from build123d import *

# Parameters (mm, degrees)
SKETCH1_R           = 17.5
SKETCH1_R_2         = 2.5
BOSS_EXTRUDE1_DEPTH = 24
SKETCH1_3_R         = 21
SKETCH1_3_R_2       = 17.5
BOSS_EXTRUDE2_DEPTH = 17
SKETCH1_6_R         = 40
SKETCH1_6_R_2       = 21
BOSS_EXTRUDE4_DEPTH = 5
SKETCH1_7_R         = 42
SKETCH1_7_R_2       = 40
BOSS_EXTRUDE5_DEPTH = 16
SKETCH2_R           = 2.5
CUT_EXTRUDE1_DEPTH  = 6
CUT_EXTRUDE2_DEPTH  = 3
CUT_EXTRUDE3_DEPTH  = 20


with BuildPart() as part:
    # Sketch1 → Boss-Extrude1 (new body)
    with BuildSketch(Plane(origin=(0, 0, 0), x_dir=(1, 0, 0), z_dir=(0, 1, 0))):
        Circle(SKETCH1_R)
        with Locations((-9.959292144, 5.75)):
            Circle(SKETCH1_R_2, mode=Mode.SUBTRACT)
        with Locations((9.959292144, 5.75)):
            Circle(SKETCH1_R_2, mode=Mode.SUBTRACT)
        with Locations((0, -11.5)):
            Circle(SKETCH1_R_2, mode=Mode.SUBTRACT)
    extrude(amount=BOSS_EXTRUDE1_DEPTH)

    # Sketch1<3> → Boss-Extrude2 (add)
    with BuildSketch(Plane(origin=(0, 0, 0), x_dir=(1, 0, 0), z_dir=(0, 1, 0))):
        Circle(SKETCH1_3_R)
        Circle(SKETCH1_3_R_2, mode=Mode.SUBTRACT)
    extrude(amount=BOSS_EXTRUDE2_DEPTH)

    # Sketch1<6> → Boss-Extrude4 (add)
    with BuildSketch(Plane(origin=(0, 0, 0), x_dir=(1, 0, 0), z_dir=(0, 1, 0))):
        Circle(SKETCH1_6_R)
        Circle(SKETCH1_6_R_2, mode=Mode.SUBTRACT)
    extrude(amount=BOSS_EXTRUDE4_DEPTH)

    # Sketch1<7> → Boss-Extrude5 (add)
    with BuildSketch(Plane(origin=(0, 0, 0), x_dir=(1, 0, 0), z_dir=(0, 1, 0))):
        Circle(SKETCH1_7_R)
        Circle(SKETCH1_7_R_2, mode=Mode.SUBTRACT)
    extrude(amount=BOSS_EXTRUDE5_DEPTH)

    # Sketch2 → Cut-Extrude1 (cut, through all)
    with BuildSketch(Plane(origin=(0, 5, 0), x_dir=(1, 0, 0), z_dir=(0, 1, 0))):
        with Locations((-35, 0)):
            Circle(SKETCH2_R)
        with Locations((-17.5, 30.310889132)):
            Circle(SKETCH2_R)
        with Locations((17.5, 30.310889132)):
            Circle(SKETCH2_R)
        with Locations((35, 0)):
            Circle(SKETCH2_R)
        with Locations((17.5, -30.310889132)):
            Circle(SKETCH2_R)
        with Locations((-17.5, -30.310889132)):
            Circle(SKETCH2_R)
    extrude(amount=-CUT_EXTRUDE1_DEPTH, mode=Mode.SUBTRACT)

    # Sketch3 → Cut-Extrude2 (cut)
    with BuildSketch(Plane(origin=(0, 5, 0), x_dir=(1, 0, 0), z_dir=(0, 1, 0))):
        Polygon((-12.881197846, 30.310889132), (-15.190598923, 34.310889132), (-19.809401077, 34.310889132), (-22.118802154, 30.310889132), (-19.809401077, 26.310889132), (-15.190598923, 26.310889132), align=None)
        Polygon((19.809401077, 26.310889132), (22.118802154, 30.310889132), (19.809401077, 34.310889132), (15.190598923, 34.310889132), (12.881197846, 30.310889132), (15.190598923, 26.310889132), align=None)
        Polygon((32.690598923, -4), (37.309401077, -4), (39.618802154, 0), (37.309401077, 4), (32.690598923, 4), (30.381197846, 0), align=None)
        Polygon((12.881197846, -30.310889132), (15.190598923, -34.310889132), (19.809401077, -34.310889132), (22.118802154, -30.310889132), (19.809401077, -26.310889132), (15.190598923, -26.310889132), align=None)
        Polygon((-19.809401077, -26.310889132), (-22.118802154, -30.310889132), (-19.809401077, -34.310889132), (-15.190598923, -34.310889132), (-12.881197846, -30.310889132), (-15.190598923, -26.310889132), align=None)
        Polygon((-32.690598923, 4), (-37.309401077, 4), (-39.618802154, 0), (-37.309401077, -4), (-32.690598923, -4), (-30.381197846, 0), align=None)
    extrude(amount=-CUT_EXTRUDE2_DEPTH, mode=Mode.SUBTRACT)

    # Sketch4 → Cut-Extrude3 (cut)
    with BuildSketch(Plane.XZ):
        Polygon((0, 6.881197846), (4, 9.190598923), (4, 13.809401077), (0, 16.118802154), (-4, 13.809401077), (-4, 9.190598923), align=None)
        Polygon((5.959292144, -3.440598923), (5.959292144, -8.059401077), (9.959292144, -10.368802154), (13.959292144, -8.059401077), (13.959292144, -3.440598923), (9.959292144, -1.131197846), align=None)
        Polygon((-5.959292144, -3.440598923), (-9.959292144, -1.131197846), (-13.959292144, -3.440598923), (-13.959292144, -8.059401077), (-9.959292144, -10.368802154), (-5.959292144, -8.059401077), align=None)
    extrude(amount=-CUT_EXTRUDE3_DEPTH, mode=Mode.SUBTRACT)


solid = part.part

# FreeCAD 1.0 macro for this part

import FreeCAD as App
import Part
import Sketcher
Q = App.Units.Quantity


def add_polygon(sketch, points):
    """Adds a closed chain of lines whose ends are joined by coincident constraints."""
    first, n = sketch.GeometryCount, len(points)
    for a, b in zip(points, points[1:] + points[:1]):
        sketch.addGeometry(Part.LineSegment(App.Vector(*a, 0), App.Vector(*b, 0)), False)
    for i in range(n):
        sketch.addConstraint(Sketcher.Constraint("Coincident", first + i, 2, first + (i + 1) % n, 1))

doc = App.newDocument("Part")
body = doc.addObject("PartDesign::Body", "Body")

# Sketch on XZ plane
sketch1 = body.newObject("Sketcher::SketchObject", "Sketch")
sketch1.AttachmentSupport = (doc.getObject("XZ_Plane"), [""])
sketch1.MapMode = "FlatFace"
sketch1.addGeometry(Part.Circle(App.Vector(0, 0, 0), App.Vector(0, 0, 1), 17.5), False)
sketch1.addGeometry(Part.Circle(App.Vector(0, 11.5, 0), App.Vector(0, 0, 1), 2.5), False)
sketch1.addGeometry(Part.Circle(App.Vector(-10, -5.8, 0), App.Vector(0, 0, 1), 2.5), False)
sketch1.addGeometry(Part.Circle(App.Vector(10, -5.8, 0), App.Vector(0, 0, 1), 2.5), False)
sketch1.addConstraint(Sketcher.Constraint("Coincident", 0, 3, -1, 1))
sketch1.addConstraint(Sketcher.Constraint("Equal", 1, 2))
sketch1.addConstraint(Sketcher.Constraint("Equal", 2, 3))
sketch1.addConstraint(Sketcher.Constraint("Symmetric", 2, 3, 3, 3, -2))
sketch1.addConstraint(Sketcher.Constraint("PointOnObject", 1, 3, -2))
sketch1.addConstraint(Sketcher.Constraint("Diameter", 0, Q("35 mm")))
sketch1.addConstraint(Sketcher.Constraint("Diameter", 1, Q("5 mm")))
sketch1.addConstraint(Sketcher.Constraint("DistanceY", -1, 1, 1, 3, Q("11.5 mm")))
sketch1.addConstraint(Sketcher.Constraint("DistanceY", 2, 3, -1, 1, Q("5.75 mm")))
sketch1.addConstraint(Sketcher.Constraint("DistanceX", 2, 3, -1, 1, Q("9.959292 mm")))
pad1 = body.newObject("PartDesign::Pad", "Pad")
pad1.Profile = sketch1
pad1.Length = 24
pad1.Reversed = True

# Sketch on XZ plane
sketch2 = body.newObject("Sketcher::SketchObject", "Sketch001")
sketch2.AttachmentSupport = (doc.getObject("XZ_Plane"), [""])
sketch2.MapMode = "FlatFace"
sketch2.addGeometry(Part.Circle(App.Vector(0, 0, 0), App.Vector(0, 0, 1), 21), False)
sketch2.addGeometry(Part.Circle(App.Vector(0, 0, 0), App.Vector(0, 0, 1), 18), False)
sketch2.addConstraint(Sketcher.Constraint("Coincident", 0, 3, -1, 1))
sketch2.addConstraint(Sketcher.Constraint("Coincident", 1, 3, -1, 1))
sketch2.addConstraint(Sketcher.Constraint("Diameter", 0, Q("42 mm")))
sketch2.addConstraint(Sketcher.Constraint("Diameter", 1, Q("35 mm")))
pad2 = body.newObject("PartDesign::Pad", "Pad001")
pad2.Profile = sketch2
pad2.Length = 17
pad2.Reversed = True

# Sketch on XZ plane
sketch3 = body.newObject("Sketcher::SketchObject", "Sketch002")
sketch3.AttachmentSupport = (doc.getObject("XZ_Plane"), [""])
sketch3.MapMode = "FlatFace"
sketch3.addGeometry(Part.Circle(App.Vector(0, 0, 0), App.Vector(0, 0, 1), 40), False)
sketch3.addGeometry(Part.Circle(App.Vector(0, 0, 0), App.Vector(0, 0, 1), 21), False)
sketch3.addConstraint(Sketcher.Constraint("Coincident", 0, 3, -1, 1))
sketch3.addConstraint(Sketcher.Constraint("Coincident", 1, 3, -1, 1))
sketch3.addConstraint(Sketcher.Constraint("Diameter", 0, Q("80 mm")))
sketch3.addConstraint(Sketcher.Constraint("Diameter", 1, Q("42 mm")))
pad3 = body.newObject("PartDesign::Pad", "Pad002")
pad3.Profile = sketch3
pad3.Length = 5
pad3.Reversed = True

# Sketch on XZ plane
sketch4 = body.newObject("Sketcher::SketchObject", "Sketch003")
sketch4.AttachmentSupport = (doc.getObject("XZ_Plane"), [""])
sketch4.MapMode = "FlatFace"
sketch4.addGeometry(Part.Circle(App.Vector(0, 0, 0), App.Vector(0, 0, 1), 42), False)
sketch4.addGeometry(Part.Circle(App.Vector(0, 0, 0), App.Vector(0, 0, 1), 40), False)
sketch4.addConstraint(Sketcher.Constraint("Coincident", 0, 3, -1, 1))
sketch4.addConstraint(Sketcher.Constraint("Coincident", 1, 3, -1, 1))
sketch4.addConstraint(Sketcher.Constraint("Diameter", 0, Q("84 mm")))
sketch4.addConstraint(Sketcher.Constraint("Diameter", 1, Q("80 mm")))
pad4 = body.newObject("PartDesign::Pad", "Pad003")
pad4.Profile = sketch4
pad4.Length = 16
pad4.Reversed = True

# Sketch on XZ plane
sketch5 = body.newObject("Sketcher::SketchObject", "Sketch004")
sketch5.AttachmentSupport = (doc.getObject("XZ_Plane"), [""])
sketch5.MapMode = "FlatFace"
sketch5.AttachmentOffset = App.Placement(App.Vector(0, 0, -5), App.Rotation())
sketch5.addGeometry(Part.Circle(App.Vector(-35, 0, 0), App.Vector(0, 0, 1), 2.5), False)
sketch5.addGeometry(Part.Circle(App.Vector(-17.5, -30.3, 0), App.Vector(0, 0, 1), 2.5), False)
sketch5.addGeometry(Part.Circle(App.Vector(17.5, -30.3, 0), App.Vector(0, 0, 1), 2.5), False)
sketch5.addGeometry(Part.Circle(App.Vector(35, 0, 0), App.Vector(0, 0, 1), 2.5), False)
sketch5.addGeometry(Part.Circle(App.Vector(17.5, 30.3, 0), App.Vector(0, 0, 1), 2.5), False)
sketch5.addGeometry(Part.Circle(App.Vector(-17.5, 30.3, 0), App.Vector(0, 0, 1), 2.5), False)
sketch5.addConstraint(Sketcher.Constraint("Equal", 0, 1))
sketch5.addConstraint(Sketcher.Constraint("Equal", 1, 2))
sketch5.addConstraint(Sketcher.Constraint("Equal", 2, 3))
sketch5.addConstraint(Sketcher.Constraint("Equal", 3, 4))
sketch5.addConstraint(Sketcher.Constraint("Equal", 4, 5))
sketch5.addConstraint(Sketcher.Constraint("Symmetric", 0, 3, 3, 3, -1, 1))
sketch5.addConstraint(Sketcher.Constraint("Symmetric", 1, 3, 4, 3, -1, 1))
sketch5.addConstraint(Sketcher.Constraint("Symmetric", 2, 3, 5, 3, -1, 1))
sketch5.addConstraint(Sketcher.Constraint("Symmetric", 1, 3, 2, 3, -2))
sketch5.addConstraint(Sketcher.Constraint("PointOnObject", 0, 3, -1))
sketch5.addConstraint(Sketcher.Constraint("Diameter", 0, Q("5 mm")))
sketch5.addConstraint(Sketcher.Constraint("DistanceX", 0, 3, -1, 1, Q("35 mm")))
sketch5.addConstraint(Sketcher.Constraint("DistanceX", 1, 3, 2, 3, Q("35 mm")))
sketch5.addConstraint(Sketcher.Constraint("DistanceY", 1, 3, -1, 1, Q("30.310889 mm")))
pocket1 = body.newObject("PartDesign::Pocket", "Pocket")
pocket1.Profile = sketch5
pocket1.Type = "ThroughAll"
pocket1.Reversed = True

# Sketch on XZ plane
sketch6 = body.newObject("Sketcher::SketchObject", "Sketch005")
sketch6.AttachmentSupport = (doc.getObject("XZ_Plane"), [""])
sketch6.MapMode = "FlatFace"
sketch6.AttachmentOffset = App.Placement(App.Vector(0, 0, -5), App.Rotation())
add_polygon(sketch6, [(-12.9, -30.3), (-15.2, -34.3), (-19.8, -34.3), (-22.1, -30.3), (-19.8, -26.3), (-15.2, -26.3)])  # lines 0-5
add_polygon(sketch6, [(19.8, -26.3), (22.1, -30.3), (19.8, -34.3), (15.2, -34.3), (12.9, -30.3), (15.2, -26.3)])  # lines 6-11
add_polygon(sketch6, [(32.7, 4), (37.3, 4), (39.6, 0), (37.3, -4), (32.7, -4), (30.4, 0)])  # lines 12-17
add_polygon(sketch6, [(12.9, 30.3), (15.2, 34.3), (19.8, 34.3), (22.1, 30.3), (19.8, 26.3), (15.2, 26.3)])  # lines 18-23
add_polygon(sketch6, [(-19.8, 26.3), (-22.1, 30.3), (-19.8, 34.3), (-15.2, 34.3), (-12.9, 30.3), (-15.2, 26.3)])  # lines 24-29
add_polygon(sketch6, [(-32.7, -4), (-37.3, -4), (-39.6, 0), (-37.3, 4), (-32.7, 4), (-30.4, 0)])  # lines 30-35
sketch6.addConstraint(Sketcher.Constraint("Horizontal", 1))
sketch6.addConstraint(Sketcher.Constraint("Horizontal", 4))
sketch6.addConstraint(Sketcher.Constraint("Horizontal", 8))
sketch6.addConstraint(Sketcher.Constraint("Horizontal", 11))
sketch6.addConstraint(Sketcher.Constraint("Horizontal", 12))
sketch6.addConstraint(Sketcher.Constraint("Horizontal", 15))
sketch6.addConstraint(Sketcher.Constraint("Horizontal", 19))
sketch6.addConstraint(Sketcher.Constraint("Horizontal", 22))
sketch6.addConstraint(Sketcher.Constraint("Horizontal", 26))
sketch6.addConstraint(Sketcher.Constraint("Horizontal", 29))
sketch6.addConstraint(Sketcher.Constraint("Horizontal", 30))
sketch6.addConstraint(Sketcher.Constraint("Horizontal", 33))
sketch6.addConstraint(Sketcher.Constraint("Symmetric", 0, 2, 18, 2, -1, 1))
sketch6.addConstraint(Sketcher.Constraint("Symmetric", 2, 2, 20, 2, -1, 1))
sketch6.addConstraint(Sketcher.Constraint("Symmetric", 3, 2, 21, 2, -1, 1))
sketch6.addConstraint(Sketcher.Constraint("Symmetric", 5, 2, 23, 2, -1, 1))
sketch6.addConstraint(Sketcher.Constraint("Symmetric", 6, 2, 24, 2, -1, 1))
sketch6.addConstraint(Sketcher.Constraint("Symmetric", 7, 2, 25, 2, -1, 1))
sketch6.addConstraint(Sketcher.Constraint("Symmetric", 9, 2, 27, 2, -1, 1))
sketch6.addConstraint(Sketcher.Constraint("Symmetric", 10, 2, 28, 2, -1, 1))
sketch6.addConstraint(Sketcher.Constraint("Symmetric", 12, 2, 30, 2, -1, 1))
sketch6.addConstraint(Sketcher.Constraint("Symmetric", 13, 2, 31, 2, -1, 1))
sketch6.addConstraint(Sketcher.Constraint("Symmetric", 14, 2, 32, 2, -1, 1))
sketch6.addConstraint(Sketcher.Constraint("Symmetric", 16, 2, 34, 2, -1, 1))
sketch6.addConstraint(Sketcher.Constraint("Symmetric", 2, 2, 6, 2, -2))
sketch6.addConstraint(Sketcher.Constraint("Symmetric", 1, 2, 7, 2, -2))
sketch6.addConstraint(Sketcher.Constraint("Symmetric", 5, 2, 9, 2, -2))
sketch6.addConstraint(Sketcher.Constraint("Symmetric", 4, 2, 10, 2, -2))
sketch6.addConstraint(Sketcher.Constraint("Symmetric", 14, 2, 30, 2, -2))
sketch6.addConstraint(Sketcher.Constraint("PointOnObject", 13, 2, -1))
sketch6.addConstraint(Sketcher.Constraint("PointOnObject", 16, 2, -1))
sketch6.addConstraint(Sketcher.Constraint("Parallel", 0, 3))
sketch6.addConstraint(Sketcher.Constraint("Parallel", 2, 5))
sketch6.addConstraint(Sketcher.Constraint("Parallel", 5, 6))
sketch6.addConstraint(Sketcher.Constraint("Parallel", 3, 7))
sketch6.addConstraint(Sketcher.Constraint("Parallel", 6, 9))
sketch6.addConstraint(Sketcher.Constraint("Parallel", 9, 13))
sketch6.addConstraint(Sketcher.Constraint("Parallel", 13, 16))
sketch6.addConstraint(Sketcher.Constraint("Parallel", 14, 17))
sketch6.addConstraint(Sketcher.Constraint("Parallel", 16, 20))
sketch6.addConstraint(Sketcher.Constraint("Parallel", 20, 23))
sketch6.addConstraint(Sketcher.Constraint("Parallel", 23, 24))
sketch6.addConstraint(Sketcher.Constraint("Parallel", 24, 27))
sketch6.addConstraint(Sketcher.Constraint("Parallel", 31, 34))
sketch6.addConstraint(Sketcher.Constraint("Parallel", 32, 35))
sketch6.addConstraint(Sketcher.Constraint("Horizontal", 2, 2, 5, 2))
sketch6.addConstraint(Sketcher.Constraint("Vertical", 1, 2, 3, 2))
sketch6.addConstraint(Sketcher.Constraint("Equal", 11, 12))
sketch6.addConstraint(Sketcher.Constraint("Equal", 10, 13))
sketch6.addConstraint(Sketcher.Constraint("Angle", 0, Q("-120 deg")))
sketch6.addConstraint(Sketcher.Constraint("DistanceY", -1, 1, 12, 2, Q("4 mm")))
sketch6.addConstraint(Sketcher.Constraint("DistanceX", 5, 2, 6, 2, Q("35 mm")))
sketch6.addConstraint(Sketcher.Constraint("DistanceX", 11, 2, 12, 2, Q("17.5 mm")))
sketch6.addConstraint(Sketcher.Constraint("DistanceX", 0, 2, -1, 1, Q("15.190599 mm")))
sketch6.addConstraint(Sketcher.Constraint("DistanceY", 0, 2, -1, 1, Q("34.310889 mm")))
pocket2 = body.newObject("PartDesign::Pocket", "Pocket001")
pocket2.Profile = sketch6
pocket2.Length = 3
pocket2.Reversed = True

# Sketch on XZ plane
sketch7 = body.newObject("Sketcher::SketchObject", "Sketch006")
sketch7.AttachmentSupport = (doc.getObject("XZ_Plane"), [""])
sketch7.MapMode = "FlatFace"
add_polygon(sketch7, [(0, 6.9), (4, 9.2), (4, 13.8), (0, 16.1), (-4, 13.8), (-4, 9.2)])  # lines 0-5
add_polygon(sketch7, [(6, -3.4), (6, -8.1), (10, -10.4), (14, -8.1), (14, -3.4), (10, -1.1)])  # lines 6-11
add_polygon(sketch7, [(-6, -3.4), (-10, -1.1), (-14, -3.4), (-14, -8.1), (-10, -10.4), (-6, -8.1)])  # lines 12-17
sketch7.addConstraint(Sketcher.Constraint("Vertical", 1))
sketch7.addConstraint(Sketcher.Constraint("Vertical", 4))
sketch7.addConstraint(Sketcher.Constraint("Vertical", 6))
sketch7.addConstraint(Sketcher.Constraint("Vertical", 9))
sketch7.addConstraint(Sketcher.Constraint("Vertical", 14))
sketch7.addConstraint(Sketcher.Constraint("Vertical", 17))
sketch7.addConstraint(Sketcher.Constraint("Symmetric", 1, 2, 3, 2, -2))
sketch7.addConstraint(Sketcher.Constraint("Symmetric", 10, 2, 12, 2, -2))
sketch7.addConstraint(Sketcher.Constraint("Symmetric", 9, 2, 13, 2, -2))
sketch7.addConstraint(Sketcher.Constraint("Symmetric", 7, 2, 15, 2, -2))
sketch7.addConstraint(Sketcher.Constraint("Symmetric", 6, 2, 16, 2, -2))
sketch7.addConstraint(Sketcher.Constraint("PointOnObject", 2, 2, -2))
sketch7.addConstraint(Sketcher.Constraint("PointOnObject", 5, 2, -2))
sketch7.addConstraint(Sketcher.Constraint("Parallel", 0, 3))
sketch7.addConstraint(Sketcher.Constraint("Parallel", 2, 5))
sketch7.addConstraint(Sketcher.Constraint("Parallel", 5, 7))
sketch7.addConstraint(Sketcher.Constraint("Parallel", 3, 8))
sketch7.addConstraint(Sketcher.Constraint("Parallel", 7, 10))
sketch7.addConstraint(Sketcher.Constraint("Parallel", 8, 11))
sketch7.addConstraint(Sketcher.Constraint("Parallel", 10, 12))
sketch7.addConstraint(Sketcher.Constraint("Parallel", 12, 15))
sketch7.addConstraint(Sketcher.Constraint("Horizontal", 6, 2, 8, 2))
sketch7.addConstraint(Sketcher.Constraint("Horizontal", 9, 2, 11, 2))
sketch7.addConstraint(Sketcher.Constraint("Equal", 4, 6))
sketch7.addConstraint(Sketcher.Constraint("Equal", 5, 7))
sketch7.addConstraint(Sketcher.Constraint("Angle", 0, Q("30 deg")))
sketch7.addConstraint(Sketcher.Constraint("DistanceX", -1, 1, 0, 2, Q("4 mm")))
sketch7.addConstraint(Sketcher.Constraint("DistanceY", 6, 2, 0, 2, Q("17.25 mm")))
sketch7.addConstraint(Sketcher.Constraint("DistanceY", -1, 1, 0, 2, Q("9.190599 mm")))
sketch7.addConstraint(Sketcher.Constraint("DistanceY", -1, 1, 1, 2, Q("13.809401 mm")))
sketch7.addConstraint(Sketcher.Constraint("DistanceX", -1, 1, 6, 2, Q("5.959292 mm")))
pocket3 = body.newObject("PartDesign::Pocket", "Pocket002")
pocket3.Profile = sketch7
pocket3.Length = 20

doc.recompute()
